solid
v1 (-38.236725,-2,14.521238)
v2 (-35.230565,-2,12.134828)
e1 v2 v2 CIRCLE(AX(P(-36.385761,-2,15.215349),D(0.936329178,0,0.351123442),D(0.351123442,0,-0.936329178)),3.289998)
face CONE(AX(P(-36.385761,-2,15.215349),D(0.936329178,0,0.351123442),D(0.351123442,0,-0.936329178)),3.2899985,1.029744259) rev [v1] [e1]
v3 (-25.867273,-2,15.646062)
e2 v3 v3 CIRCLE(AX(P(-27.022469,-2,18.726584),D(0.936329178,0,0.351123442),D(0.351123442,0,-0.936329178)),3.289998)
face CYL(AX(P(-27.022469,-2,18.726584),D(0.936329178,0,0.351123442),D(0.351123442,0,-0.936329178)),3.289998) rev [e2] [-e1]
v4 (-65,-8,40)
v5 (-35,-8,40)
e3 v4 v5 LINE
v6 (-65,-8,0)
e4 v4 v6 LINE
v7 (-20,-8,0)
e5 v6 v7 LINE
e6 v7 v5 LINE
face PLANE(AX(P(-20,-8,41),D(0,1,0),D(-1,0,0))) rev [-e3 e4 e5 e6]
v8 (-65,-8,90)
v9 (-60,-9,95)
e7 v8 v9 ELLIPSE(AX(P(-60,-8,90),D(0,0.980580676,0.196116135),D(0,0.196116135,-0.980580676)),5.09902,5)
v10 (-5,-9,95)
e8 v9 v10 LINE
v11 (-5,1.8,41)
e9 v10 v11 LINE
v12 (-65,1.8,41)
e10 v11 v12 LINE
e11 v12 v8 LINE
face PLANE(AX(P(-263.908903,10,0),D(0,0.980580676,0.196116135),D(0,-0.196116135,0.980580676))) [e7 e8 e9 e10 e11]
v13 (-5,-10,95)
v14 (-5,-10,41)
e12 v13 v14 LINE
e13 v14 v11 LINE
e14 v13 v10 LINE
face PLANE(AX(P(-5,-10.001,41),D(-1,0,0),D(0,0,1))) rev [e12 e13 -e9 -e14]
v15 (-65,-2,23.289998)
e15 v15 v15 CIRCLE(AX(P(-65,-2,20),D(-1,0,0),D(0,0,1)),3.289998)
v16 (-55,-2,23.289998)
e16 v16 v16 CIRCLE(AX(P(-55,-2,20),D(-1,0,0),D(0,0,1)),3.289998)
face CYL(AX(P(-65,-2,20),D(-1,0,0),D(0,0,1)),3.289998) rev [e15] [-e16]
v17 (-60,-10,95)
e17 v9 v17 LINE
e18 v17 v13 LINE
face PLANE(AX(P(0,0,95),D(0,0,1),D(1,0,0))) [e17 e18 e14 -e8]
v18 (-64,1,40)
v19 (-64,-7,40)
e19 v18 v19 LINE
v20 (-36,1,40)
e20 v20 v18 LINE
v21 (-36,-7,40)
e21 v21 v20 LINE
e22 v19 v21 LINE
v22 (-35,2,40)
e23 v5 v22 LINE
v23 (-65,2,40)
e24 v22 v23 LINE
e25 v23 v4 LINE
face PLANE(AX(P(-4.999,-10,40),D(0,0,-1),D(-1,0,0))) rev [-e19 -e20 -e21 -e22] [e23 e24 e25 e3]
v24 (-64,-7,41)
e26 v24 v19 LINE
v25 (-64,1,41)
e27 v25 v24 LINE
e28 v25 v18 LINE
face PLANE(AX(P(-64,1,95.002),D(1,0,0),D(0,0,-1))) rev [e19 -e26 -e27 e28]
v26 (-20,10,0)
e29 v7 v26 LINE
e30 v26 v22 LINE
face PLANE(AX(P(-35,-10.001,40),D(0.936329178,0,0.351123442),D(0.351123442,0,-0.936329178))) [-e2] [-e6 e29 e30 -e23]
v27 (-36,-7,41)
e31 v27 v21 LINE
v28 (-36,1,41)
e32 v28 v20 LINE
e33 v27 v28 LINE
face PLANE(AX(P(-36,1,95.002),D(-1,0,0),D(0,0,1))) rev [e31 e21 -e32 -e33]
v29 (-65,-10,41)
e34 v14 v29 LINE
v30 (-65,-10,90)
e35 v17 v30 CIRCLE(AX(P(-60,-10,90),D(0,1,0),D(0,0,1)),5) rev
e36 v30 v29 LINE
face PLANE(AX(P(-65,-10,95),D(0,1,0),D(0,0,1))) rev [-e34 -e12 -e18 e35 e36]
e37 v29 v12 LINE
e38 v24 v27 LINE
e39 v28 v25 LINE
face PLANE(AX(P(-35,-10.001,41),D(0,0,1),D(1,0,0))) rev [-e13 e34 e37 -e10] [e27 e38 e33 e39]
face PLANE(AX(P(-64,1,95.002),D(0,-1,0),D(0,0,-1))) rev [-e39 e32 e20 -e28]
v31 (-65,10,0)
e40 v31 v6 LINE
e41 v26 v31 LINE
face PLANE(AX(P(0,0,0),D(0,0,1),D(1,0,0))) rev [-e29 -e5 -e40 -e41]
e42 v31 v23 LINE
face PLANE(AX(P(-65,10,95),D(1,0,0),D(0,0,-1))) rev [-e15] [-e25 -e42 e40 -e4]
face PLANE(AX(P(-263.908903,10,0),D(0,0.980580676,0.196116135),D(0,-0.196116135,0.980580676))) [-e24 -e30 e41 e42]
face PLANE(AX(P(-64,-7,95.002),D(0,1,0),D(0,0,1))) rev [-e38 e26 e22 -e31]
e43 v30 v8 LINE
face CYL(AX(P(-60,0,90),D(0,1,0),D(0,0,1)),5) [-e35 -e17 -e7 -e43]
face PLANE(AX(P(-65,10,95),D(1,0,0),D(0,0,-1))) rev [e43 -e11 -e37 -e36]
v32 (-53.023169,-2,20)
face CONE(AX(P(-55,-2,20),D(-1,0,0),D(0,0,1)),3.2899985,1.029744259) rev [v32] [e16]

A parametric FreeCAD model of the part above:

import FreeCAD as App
import Part
import Sketcher

V = App.Vector
Q = App.Units.Quantity


def edges_at(feature, points):
    """Names of the edges that pass closest to the given points."""
    edges = feature.Shape.Edges
    near = lambda p: min(range(len(edges)), key=lambda i: edges[i].distToShape(Part.Vertex(*p))[0])
    return sorted({f"Edge{near(p) + 1}" for p in points})


def add_polygon(sketch, points):
    """Adds a closed chain of lines whose ends are joined by coincident constraints."""
    first, n = sketch.GeometryCount, len(points)
    for a, b in zip(points, points[1:] + points[:1]):
        sketch.addGeometry(Part.LineSegment(App.Vector(*a, 0), App.Vector(*b, 0)), False)
    for i in range(n):
        sketch.addConstraint(Sketcher.Constraint("Coincident", first + i, 2, first + (i + 1) % n, 1))

doc = App.newDocument("Part")
body = doc.addObject("PartDesign::Body", "Body")
body.AllowCompound = True

# Sketch on XY plane
sketch1 = doc.addObject("Sketcher::SketchObject", "Sketch")
body.addObject(sketch1)
sketch1.AttachmentSupport = (doc.XY_Plane, [""])
sketch1.MapMode = "FlatFace"
add_polygon(sketch1, [(-65, 10), (-65, -10), (65, -10), (65, 10)])  # lines 0-3
sketch1.addConstraint(Sketcher.Constraint("Vertical", 0))
sketch1.addConstraint(Sketcher.Constraint("Horizontal", 1))
sketch1.addConstraint(Sketcher.Constraint("Vertical", 2))
sketch1.addConstraint(Sketcher.Constraint("Horizontal", 3))
sketch1.addConstraint(Sketcher.Constraint("Symmetric", 0, 2, 2, 2, -1, 1))
sketch1.addConstraint(Sketcher.Constraint("DistanceX", 1, 1, 1, 2, Q("130 mm")))
sketch1.addConstraint(Sketcher.Constraint("DistanceY", 0, 2, 0, 1, Q("20 mm")))
pad1 = doc.addObject("PartDesign::Pad", "Pad")
body.addObject(pad1)
pad1.Profile = sketch1
pad1.Length = 95

# Sketch on XZ plane
sketch2 = doc.addObject("Sketcher::SketchObject", "Sketch001")
body.addObject(sketch2)
sketch2.AttachmentSupport = (doc.XZ_Plane, [""])
sketch2.MapMode = "FlatFace"
sketch2.AttachmentOffset = App.Placement(V(0, 0, -10), App.Rotation())
add_polygon(sketch2, [(65, 0), (-20, 0), (-35, 40), (-35, 41), (-5, 41), (-5, 95), (65, 95)])  # lines 0-6
sketch2.addConstraint(Sketcher.Constraint("Horizontal", 0))
sketch2.addConstraint(Sketcher.Constraint("Vertical", 2))
sketch2.addConstraint(Sketcher.Constraint("Horizontal", 3))
sketch2.addConstraint(Sketcher.Constraint("Vertical", 4))
sketch2.addConstraint(Sketcher.Constraint("Horizontal", 5))
sketch2.addConstraint(Sketcher.Constraint("Vertical", 6))
sketch2.addConstraint(Sketcher.Constraint("PointOnObject", 0, 2, -1))
sketch2.addConstraint(Sketcher.Constraint("DistanceX", 0, 2, 0, 1, Q("85 mm")))
sketch2.addConstraint(Sketcher.Constraint("DistanceX", 3, 1, 3, 2, Q("30 mm")))
sketch2.addConstraint(Sketcher.Constraint("DistanceX", 5, 1, 5, 2, Q("70 mm")))
sketch2.addConstraint(Sketcher.Constraint("DistanceY", 2, 1, 2, 2, Q("1 mm")))
sketch2.addConstraint(Sketcher.Constraint("DistanceY", 4, 1, 4, 2, Q("54 mm")))
sketch2.addConstraint(Sketcher.Constraint("DistanceY", 6, 2, 6, 1, Q("95 mm")))
sketch2.addConstraint(Sketcher.Constraint("DistanceX", 0, 2, -1, 1, Q("20 mm")))
pocket1 = doc.addObject("PartDesign::Pocket", "Pocket")
body.addObject(pocket1)
pocket1.Profile = sketch2
pocket1.Type = "UpToFirst"
pocket1.Reversed = True

# Sketch on YZ plane
sketch3 = doc.addObject("Sketcher::SketchObject", "Sketch002")
body.addObject(sketch3)
sketch3.AttachmentSupport = (doc.YZ_Plane, [""])
sketch3.MapMode = "FlatFace"
sketch3.AttachmentOffset = App.Placement(V(0, 0, -65), App.Rotation())
add_polygon(sketch3, [(50, -200), (-49, 295), (351, 375), (450, -120)])  # lines 0-3
sketch3.addConstraint(Sketcher.Constraint("Perpendicular", 0, 1))
sketch3.addConstraint(Sketcher.Constraint("Perpendicular", 1, 2))
sketch3.addConstraint(Sketcher.Constraint("Perpendicular", 2, 3))
sketch3.addConstraint(Sketcher.Constraint("DistanceX", -1, 1, 1, 2, Q("351.360242 mm")))
sketch3.addConstraint(Sketcher.Constraint("DistanceY", -1, 1, 1, 2, Q("375.280188 mm")))
sketch3.addConstraint(Sketcher.Constraint("DistanceY", 2, 2, -1, 1, Q("120.120081 mm")))
sketch3.addConstraint(Sketcher.Constraint("DistanceX", 0, 2, 1, 2, Q("400.400269 mm")))
sketch3.addConstraint(Sketcher.Constraint("Distance", 0, Q("505.211128 mm")))
pocket2 = doc.addObject("PartDesign::Pocket", "Pocket001")
body.addObject(pocket2)
pocket2.Profile = sketch3
pocket2.Type = "ThroughAll"
pocket2.Midplane = True

# Sketch on YZ plane
sketch4 = doc.addObject("Sketcher::SketchObject", "Sketch003")
body.addObject(sketch4)
sketch4.AttachmentSupport = (doc.YZ_Plane, [""])
sketch4.MapMode = "FlatFace"
sketch4.AttachmentOffset = App.Placement(V(0, 0, -65), App.Rotation())
sketch4.addGeometry(Part.Circle(V(-2, 20, 0), V(0, 0, 1), 3.3), False)
sketch4.addConstraint(Sketcher.Constraint("DistanceX", 0, 3, -1, 1, Q("2 mm")))
sketch4.addConstraint(Sketcher.Constraint("DistanceY", -1, 1, 0, 3, Q("20 mm")))
sketch4.addConstraint(Sketcher.Constraint("Diameter", 0, Q("6.579997 mm")))
doc.recompute()
hole = doc.addObject("PartDesign::Hole", "Hole")
body.addObject(hole)
hole.Profile = sketch4
hole.ThreadType = "None"
hole.Diameter = 6.579997
hole.DepthType = "Dimension"
hole.Depth = 10
hole.DrillPoint = "Angled"
hole.DrillPointAngle = 118
hole.Reversed = True

# Sketch on an angled plane
sketch5 = doc.addObject("Sketcher::SketchObject", "Sketch004")
body.addObject(sketch5)
sketch5.Placement = App.Placement(V(-17.534247, 0, -6.575342), App.Rotation(V(0.351123442, 0, -0.936329177), V(0, 0.999999999, 0), V(0.936329177, 0, 0.351123442), "ZXY"))
sketch5.addGeometry(Part.Circle(V(-27, -2, 0), V(0, 0, 1), 3.3), False)
sketch5.addConstraint(Sketcher.Constraint("DistanceY", 0, 3, -1, 1, Q("2 mm")))
sketch5.addConstraint(Sketcher.Constraint("Diameter", 0, Q("6.579997 mm")))
sketch5.addConstraint(Sketcher.Constraint("DistanceX", 0, 3, -1, 1, Q("27.022469 mm")))
doc.recompute()
hole2 = doc.addObject("PartDesign::Hole", "Hole001")
body.addObject(hole2)
hole2.Profile = sketch5
hole2.ThreadType = "None"
hole2.Diameter = 6.579997
hole2.DepthType = "Dimension"
hole2.Depth = 10
hole2.DrillPoint = "Angled"
hole2.DrillPointAngle = 118
doc.recompute()

fillet = doc.addObject("PartDesign::Fillet", "Fillet")
body.addObject(fillet)
fillet.Base = (hole2, edges_at(hole2, [(-65, -9.5, 95)]))
fillet.Radius = 5

# Sketch on YZ plane
sketch6 = doc.addObject("Sketcher::SketchObject", "Sketch005")
body.addObject(sketch6)
sketch6.AttachmentSupport = (doc.YZ_Plane, [""])
sketch6.MapMode = "FlatFace"
sketch6.AttachmentOffset = App.Placement(V(0, 0, -65), App.Rotation())
add_polygon(sketch6, [(-10, 41), (1.8, 41), (2, 40), (-10, 40)])  # lines 0-3
sketch6.addConstraint(Sketcher.Constraint("Horizontal", 0))
sketch6.addConstraint(Sketcher.Constraint("Horizontal", 2))
sketch6.addConstraint(Sketcher.Constraint("Vertical", 3))
sketch6.addConstraint(Sketcher.Constraint("DistanceX", 2, 2, 2, 1, Q("12 mm")))
sketch6.addConstraint(Sketcher.Constraint("DistanceY", 3, 1, 3, 2, Q("1 mm")))
sketch6.addConstraint(Sketcher.Constraint("DistanceX", 0, 1, 0, 2, Q("11.8 mm")))
sketch6.addConstraint(Sketcher.Constraint("DistanceY", -1, 1, 0, 2, Q("41 mm")))
sketch6.addConstraint(Sketcher.Constraint("DistanceX", -1, 1, 1, 2, Q("2 mm")))
pocket3 = doc.addObject("PartDesign::Pocket", "Pocket002")
body.addObject(pocket3)
pocket3.Profile = sketch6
pocket3.Type = "UpToFirst"
pocket3.Reversed = True

# Sketch on XY plane
sketch7 = doc.addObject("Sketcher::SketchObject", "Sketch006")
body.addObject(sketch7)
sketch7.AttachmentSupport = (doc.XY_Plane, [""])
sketch7.MapMode = "FlatFace"
sketch7.AttachmentOffset = App.Placement(V(0, 0, 40), App.Rotation())
add_polygon(sketch7, [(-64, 1), (-64, -7), (-36, -7), (-36, 1)])  # lines 0-3
sketch7.addConstraint(Sketcher.Constraint("Vertical", 0))
sketch7.addConstraint(Sketcher.Constraint("Horizontal", 1))
sketch7.addConstraint(Sketcher.Constraint("Vertical", 2))
sketch7.addConstraint(Sketcher.Constraint("Horizontal", 3))
sketch7.addConstraint(Sketcher.Constraint("DistanceX", 1, 1, 1, 2, Q("28 mm")))
sketch7.addConstraint(Sketcher.Constraint("DistanceY", 0, 2, 0, 1, Q("8 mm")))
sketch7.addConstraint(Sketcher.Constraint("DistanceX", 0, 2, -1, 1, Q("64 mm")))
sketch7.addConstraint(Sketcher.Constraint("DistanceY", 0, 2, -1, 1, Q("7 mm")))
pad2 = doc.addObject("PartDesign::Pad", "Pad001")
body.addObject(pad2)
pad2.Profile = sketch7
pad2.Type = "UpToFirst"

# Sketch on XY plane
sketch8 = doc.addObject("Sketcher::SketchObject", "Sketch007")
body.addObject(sketch8)
sketch8.AttachmentSupport = (doc.XY_Plane, [""])
sketch8.MapMode = "FlatFace"
add_polygon(sketch8, [(-20, -8), (-20, -10), (-65, -10), (-65, -8)])  # lines 0-3
sketch8.addConstraint(Sketcher.Constraint("Vertical", 0))
sketch8.addConstraint(Sketcher.Constraint("Horizontal", 1))
sketch8.addConstraint(Sketcher.Constraint("Vertical", 2))
sketch8.addConstraint(Sketcher.Constraint("Horizontal", 3))
sketch8.addConstraint(Sketcher.Constraint("DistanceX", 1, 2, 1, 1, Q("45 mm")))
sketch8.addConstraint(Sketcher.Constraint("DistanceY", 0, 2, 0, 1, Q("2 mm")))
sketch8.addConstraint(Sketcher.Constraint("DistanceX", 0, 2, -1, 1, Q("20 mm")))
sketch8.addConstraint(Sketcher.Constraint("DistanceY", 0, 2, -1, 1, Q("10 mm")))
pocket4 = doc.addObject("PartDesign::Pocket", "Pocket003")
body.addObject(pocket4)
pocket4.Profile = sketch8
pocket4.Length = 41
pocket4.Reversed = True

doc.recompute()
